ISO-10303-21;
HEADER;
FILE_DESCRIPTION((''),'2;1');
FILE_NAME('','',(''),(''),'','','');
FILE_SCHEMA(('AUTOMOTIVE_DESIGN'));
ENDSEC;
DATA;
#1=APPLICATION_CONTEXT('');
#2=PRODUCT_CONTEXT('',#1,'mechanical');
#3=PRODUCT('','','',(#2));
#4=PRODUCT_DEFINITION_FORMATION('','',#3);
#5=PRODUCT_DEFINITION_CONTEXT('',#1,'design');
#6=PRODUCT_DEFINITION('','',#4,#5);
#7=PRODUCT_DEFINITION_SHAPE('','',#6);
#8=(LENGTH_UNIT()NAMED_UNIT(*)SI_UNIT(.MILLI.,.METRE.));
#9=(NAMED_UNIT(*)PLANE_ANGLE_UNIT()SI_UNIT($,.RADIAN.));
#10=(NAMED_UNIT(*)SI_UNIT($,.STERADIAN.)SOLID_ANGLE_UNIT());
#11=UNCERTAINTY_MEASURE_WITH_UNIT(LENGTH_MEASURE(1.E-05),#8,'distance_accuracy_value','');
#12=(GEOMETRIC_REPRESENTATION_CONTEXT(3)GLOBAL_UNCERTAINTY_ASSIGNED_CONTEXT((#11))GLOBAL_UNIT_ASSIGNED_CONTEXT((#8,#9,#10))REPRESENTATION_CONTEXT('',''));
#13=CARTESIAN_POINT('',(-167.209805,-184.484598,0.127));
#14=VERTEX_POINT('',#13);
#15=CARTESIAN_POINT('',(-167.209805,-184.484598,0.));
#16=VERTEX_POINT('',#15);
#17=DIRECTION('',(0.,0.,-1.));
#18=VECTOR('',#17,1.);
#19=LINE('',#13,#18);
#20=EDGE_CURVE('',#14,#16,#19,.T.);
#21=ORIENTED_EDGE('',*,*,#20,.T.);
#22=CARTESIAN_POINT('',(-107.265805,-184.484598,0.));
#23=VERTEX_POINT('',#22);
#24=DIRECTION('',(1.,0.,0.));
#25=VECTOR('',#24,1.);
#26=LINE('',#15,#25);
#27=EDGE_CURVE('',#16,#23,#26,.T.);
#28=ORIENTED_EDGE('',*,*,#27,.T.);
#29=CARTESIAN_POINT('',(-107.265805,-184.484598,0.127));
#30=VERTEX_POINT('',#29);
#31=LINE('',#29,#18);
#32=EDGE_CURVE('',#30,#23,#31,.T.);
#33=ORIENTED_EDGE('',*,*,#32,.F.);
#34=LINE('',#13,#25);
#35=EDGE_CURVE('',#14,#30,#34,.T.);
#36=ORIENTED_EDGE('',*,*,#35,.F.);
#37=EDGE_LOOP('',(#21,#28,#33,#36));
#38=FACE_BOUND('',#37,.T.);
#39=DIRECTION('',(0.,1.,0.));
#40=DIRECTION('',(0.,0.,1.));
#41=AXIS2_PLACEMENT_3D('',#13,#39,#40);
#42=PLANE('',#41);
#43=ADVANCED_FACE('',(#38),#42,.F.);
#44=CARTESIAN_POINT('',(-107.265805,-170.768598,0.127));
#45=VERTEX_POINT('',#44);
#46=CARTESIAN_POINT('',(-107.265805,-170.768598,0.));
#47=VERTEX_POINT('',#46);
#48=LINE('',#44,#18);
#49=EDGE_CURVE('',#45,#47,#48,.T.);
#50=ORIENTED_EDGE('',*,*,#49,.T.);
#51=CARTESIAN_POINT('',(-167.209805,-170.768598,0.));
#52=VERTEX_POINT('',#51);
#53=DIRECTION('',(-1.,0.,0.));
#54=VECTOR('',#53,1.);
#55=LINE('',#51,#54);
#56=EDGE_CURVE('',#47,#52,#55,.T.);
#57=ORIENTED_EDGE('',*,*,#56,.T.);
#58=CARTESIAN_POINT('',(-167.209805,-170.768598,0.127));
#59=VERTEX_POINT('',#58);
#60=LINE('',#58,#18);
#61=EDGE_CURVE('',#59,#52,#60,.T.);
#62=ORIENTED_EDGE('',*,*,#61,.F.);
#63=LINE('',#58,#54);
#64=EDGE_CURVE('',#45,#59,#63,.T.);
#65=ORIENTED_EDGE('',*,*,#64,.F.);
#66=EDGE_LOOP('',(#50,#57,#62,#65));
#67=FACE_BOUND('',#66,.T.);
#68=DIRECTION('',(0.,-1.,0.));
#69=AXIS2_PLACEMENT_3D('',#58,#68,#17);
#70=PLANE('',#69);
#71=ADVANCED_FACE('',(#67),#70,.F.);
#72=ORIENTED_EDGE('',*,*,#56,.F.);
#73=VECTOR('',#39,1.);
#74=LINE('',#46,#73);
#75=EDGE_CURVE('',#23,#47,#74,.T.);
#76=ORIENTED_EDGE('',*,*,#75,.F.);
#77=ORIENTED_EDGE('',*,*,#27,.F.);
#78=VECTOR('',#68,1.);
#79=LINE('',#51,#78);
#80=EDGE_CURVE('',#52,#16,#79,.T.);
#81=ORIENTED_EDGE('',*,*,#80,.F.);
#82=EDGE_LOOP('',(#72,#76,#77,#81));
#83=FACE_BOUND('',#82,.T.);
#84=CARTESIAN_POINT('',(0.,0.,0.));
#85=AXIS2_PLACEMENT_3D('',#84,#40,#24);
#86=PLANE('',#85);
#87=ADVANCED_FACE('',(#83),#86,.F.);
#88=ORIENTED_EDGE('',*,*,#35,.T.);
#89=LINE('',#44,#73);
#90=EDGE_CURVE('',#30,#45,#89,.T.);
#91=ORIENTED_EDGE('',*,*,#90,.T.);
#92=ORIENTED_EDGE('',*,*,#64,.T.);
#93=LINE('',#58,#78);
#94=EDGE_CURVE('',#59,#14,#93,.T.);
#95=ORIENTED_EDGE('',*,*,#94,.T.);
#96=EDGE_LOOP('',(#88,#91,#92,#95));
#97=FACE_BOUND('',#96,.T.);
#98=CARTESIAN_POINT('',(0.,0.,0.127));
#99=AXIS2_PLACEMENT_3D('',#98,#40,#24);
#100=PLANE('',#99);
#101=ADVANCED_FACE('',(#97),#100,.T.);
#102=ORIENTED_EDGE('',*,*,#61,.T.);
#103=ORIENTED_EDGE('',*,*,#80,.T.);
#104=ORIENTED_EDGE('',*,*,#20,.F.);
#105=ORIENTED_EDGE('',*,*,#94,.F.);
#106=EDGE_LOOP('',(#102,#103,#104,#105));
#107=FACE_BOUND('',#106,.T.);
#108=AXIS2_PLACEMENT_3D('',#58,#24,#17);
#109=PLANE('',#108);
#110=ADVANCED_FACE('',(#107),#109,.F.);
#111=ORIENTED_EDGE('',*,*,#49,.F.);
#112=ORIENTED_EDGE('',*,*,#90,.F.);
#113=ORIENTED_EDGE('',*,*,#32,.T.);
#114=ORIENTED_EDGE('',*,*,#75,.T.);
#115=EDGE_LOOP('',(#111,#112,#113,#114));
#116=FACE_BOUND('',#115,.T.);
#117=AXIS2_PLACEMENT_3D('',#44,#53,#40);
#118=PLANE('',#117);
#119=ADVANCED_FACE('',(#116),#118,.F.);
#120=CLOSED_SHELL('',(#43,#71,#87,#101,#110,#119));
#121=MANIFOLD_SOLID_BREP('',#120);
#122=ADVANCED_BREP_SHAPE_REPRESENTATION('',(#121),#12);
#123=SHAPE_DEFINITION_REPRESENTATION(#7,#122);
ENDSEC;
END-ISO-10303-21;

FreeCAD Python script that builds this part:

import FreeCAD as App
import Part
import Sketcher

V = App.Vector
Q = App.Units.Quantity

doc = App.newDocument("Part")
body = doc.addObject("PartDesign::Body", "Body")

sketch1 = body.newObject("Sketcher::SketchObject", "Sketch")
sketch1.AttachmentSupport = (doc.getObject("XY_Plane"), [""])
sketch1.MapMode = "FlatFace"
sketch1.addGeometry([
    Part.LineSegment(V(-167.209805, -170.768598, 0), V(-167.209805, -184.484598, 0)),
    Part.LineSegment(V(-167.209805, -184.484598, 0), V(-107.265805, -184.484598, 0)),
    Part.LineSegment(V(-107.265805, -184.484598, 0), V(-107.265805, -170.768598, 0)),
    Part.LineSegment(V(-107.265805, -170.768598, 0), V(-167.209805, -170.768598, 0)),
], False)
sketch1.addConstraint([
    Sketcher.Constraint("Coincident", 0, 2, 1, 1),
    Sketcher.Constraint("Coincident", 1, 2, 2, 1),
    Sketcher.Constraint("Coincident", 2, 2, 3, 1),
    Sketcher.Constraint("Coincident", 3, 2, 0, 1),
    Sketcher.Constraint("Vertical", 0),
    Sketcher.Constraint("Horizontal", 1),
    Sketcher.Constraint("Vertical", 2),
    Sketcher.Constraint("Horizontal", 3),
    Sketcher.Constraint("DistanceX", 1, 1, 1, 2, Q("2.36 in")),
    Sketcher.Constraint("DistanceY", 0, 2, 0, 1, Q("0.54 in")),
    Sketcher.Constraint("DistanceX", 0, 2, -1, 1, Q("167.209805 mm")),
    Sketcher.Constraint("DistanceY", 0, 2, -1, 1, Q("184.484598 mm")),
])
pad1 = body.newObject("PartDesign::Pad", "Pad")
pad1.Profile = sketch1
pad1.Length = Q("0.005 in")

doc.recompute()
